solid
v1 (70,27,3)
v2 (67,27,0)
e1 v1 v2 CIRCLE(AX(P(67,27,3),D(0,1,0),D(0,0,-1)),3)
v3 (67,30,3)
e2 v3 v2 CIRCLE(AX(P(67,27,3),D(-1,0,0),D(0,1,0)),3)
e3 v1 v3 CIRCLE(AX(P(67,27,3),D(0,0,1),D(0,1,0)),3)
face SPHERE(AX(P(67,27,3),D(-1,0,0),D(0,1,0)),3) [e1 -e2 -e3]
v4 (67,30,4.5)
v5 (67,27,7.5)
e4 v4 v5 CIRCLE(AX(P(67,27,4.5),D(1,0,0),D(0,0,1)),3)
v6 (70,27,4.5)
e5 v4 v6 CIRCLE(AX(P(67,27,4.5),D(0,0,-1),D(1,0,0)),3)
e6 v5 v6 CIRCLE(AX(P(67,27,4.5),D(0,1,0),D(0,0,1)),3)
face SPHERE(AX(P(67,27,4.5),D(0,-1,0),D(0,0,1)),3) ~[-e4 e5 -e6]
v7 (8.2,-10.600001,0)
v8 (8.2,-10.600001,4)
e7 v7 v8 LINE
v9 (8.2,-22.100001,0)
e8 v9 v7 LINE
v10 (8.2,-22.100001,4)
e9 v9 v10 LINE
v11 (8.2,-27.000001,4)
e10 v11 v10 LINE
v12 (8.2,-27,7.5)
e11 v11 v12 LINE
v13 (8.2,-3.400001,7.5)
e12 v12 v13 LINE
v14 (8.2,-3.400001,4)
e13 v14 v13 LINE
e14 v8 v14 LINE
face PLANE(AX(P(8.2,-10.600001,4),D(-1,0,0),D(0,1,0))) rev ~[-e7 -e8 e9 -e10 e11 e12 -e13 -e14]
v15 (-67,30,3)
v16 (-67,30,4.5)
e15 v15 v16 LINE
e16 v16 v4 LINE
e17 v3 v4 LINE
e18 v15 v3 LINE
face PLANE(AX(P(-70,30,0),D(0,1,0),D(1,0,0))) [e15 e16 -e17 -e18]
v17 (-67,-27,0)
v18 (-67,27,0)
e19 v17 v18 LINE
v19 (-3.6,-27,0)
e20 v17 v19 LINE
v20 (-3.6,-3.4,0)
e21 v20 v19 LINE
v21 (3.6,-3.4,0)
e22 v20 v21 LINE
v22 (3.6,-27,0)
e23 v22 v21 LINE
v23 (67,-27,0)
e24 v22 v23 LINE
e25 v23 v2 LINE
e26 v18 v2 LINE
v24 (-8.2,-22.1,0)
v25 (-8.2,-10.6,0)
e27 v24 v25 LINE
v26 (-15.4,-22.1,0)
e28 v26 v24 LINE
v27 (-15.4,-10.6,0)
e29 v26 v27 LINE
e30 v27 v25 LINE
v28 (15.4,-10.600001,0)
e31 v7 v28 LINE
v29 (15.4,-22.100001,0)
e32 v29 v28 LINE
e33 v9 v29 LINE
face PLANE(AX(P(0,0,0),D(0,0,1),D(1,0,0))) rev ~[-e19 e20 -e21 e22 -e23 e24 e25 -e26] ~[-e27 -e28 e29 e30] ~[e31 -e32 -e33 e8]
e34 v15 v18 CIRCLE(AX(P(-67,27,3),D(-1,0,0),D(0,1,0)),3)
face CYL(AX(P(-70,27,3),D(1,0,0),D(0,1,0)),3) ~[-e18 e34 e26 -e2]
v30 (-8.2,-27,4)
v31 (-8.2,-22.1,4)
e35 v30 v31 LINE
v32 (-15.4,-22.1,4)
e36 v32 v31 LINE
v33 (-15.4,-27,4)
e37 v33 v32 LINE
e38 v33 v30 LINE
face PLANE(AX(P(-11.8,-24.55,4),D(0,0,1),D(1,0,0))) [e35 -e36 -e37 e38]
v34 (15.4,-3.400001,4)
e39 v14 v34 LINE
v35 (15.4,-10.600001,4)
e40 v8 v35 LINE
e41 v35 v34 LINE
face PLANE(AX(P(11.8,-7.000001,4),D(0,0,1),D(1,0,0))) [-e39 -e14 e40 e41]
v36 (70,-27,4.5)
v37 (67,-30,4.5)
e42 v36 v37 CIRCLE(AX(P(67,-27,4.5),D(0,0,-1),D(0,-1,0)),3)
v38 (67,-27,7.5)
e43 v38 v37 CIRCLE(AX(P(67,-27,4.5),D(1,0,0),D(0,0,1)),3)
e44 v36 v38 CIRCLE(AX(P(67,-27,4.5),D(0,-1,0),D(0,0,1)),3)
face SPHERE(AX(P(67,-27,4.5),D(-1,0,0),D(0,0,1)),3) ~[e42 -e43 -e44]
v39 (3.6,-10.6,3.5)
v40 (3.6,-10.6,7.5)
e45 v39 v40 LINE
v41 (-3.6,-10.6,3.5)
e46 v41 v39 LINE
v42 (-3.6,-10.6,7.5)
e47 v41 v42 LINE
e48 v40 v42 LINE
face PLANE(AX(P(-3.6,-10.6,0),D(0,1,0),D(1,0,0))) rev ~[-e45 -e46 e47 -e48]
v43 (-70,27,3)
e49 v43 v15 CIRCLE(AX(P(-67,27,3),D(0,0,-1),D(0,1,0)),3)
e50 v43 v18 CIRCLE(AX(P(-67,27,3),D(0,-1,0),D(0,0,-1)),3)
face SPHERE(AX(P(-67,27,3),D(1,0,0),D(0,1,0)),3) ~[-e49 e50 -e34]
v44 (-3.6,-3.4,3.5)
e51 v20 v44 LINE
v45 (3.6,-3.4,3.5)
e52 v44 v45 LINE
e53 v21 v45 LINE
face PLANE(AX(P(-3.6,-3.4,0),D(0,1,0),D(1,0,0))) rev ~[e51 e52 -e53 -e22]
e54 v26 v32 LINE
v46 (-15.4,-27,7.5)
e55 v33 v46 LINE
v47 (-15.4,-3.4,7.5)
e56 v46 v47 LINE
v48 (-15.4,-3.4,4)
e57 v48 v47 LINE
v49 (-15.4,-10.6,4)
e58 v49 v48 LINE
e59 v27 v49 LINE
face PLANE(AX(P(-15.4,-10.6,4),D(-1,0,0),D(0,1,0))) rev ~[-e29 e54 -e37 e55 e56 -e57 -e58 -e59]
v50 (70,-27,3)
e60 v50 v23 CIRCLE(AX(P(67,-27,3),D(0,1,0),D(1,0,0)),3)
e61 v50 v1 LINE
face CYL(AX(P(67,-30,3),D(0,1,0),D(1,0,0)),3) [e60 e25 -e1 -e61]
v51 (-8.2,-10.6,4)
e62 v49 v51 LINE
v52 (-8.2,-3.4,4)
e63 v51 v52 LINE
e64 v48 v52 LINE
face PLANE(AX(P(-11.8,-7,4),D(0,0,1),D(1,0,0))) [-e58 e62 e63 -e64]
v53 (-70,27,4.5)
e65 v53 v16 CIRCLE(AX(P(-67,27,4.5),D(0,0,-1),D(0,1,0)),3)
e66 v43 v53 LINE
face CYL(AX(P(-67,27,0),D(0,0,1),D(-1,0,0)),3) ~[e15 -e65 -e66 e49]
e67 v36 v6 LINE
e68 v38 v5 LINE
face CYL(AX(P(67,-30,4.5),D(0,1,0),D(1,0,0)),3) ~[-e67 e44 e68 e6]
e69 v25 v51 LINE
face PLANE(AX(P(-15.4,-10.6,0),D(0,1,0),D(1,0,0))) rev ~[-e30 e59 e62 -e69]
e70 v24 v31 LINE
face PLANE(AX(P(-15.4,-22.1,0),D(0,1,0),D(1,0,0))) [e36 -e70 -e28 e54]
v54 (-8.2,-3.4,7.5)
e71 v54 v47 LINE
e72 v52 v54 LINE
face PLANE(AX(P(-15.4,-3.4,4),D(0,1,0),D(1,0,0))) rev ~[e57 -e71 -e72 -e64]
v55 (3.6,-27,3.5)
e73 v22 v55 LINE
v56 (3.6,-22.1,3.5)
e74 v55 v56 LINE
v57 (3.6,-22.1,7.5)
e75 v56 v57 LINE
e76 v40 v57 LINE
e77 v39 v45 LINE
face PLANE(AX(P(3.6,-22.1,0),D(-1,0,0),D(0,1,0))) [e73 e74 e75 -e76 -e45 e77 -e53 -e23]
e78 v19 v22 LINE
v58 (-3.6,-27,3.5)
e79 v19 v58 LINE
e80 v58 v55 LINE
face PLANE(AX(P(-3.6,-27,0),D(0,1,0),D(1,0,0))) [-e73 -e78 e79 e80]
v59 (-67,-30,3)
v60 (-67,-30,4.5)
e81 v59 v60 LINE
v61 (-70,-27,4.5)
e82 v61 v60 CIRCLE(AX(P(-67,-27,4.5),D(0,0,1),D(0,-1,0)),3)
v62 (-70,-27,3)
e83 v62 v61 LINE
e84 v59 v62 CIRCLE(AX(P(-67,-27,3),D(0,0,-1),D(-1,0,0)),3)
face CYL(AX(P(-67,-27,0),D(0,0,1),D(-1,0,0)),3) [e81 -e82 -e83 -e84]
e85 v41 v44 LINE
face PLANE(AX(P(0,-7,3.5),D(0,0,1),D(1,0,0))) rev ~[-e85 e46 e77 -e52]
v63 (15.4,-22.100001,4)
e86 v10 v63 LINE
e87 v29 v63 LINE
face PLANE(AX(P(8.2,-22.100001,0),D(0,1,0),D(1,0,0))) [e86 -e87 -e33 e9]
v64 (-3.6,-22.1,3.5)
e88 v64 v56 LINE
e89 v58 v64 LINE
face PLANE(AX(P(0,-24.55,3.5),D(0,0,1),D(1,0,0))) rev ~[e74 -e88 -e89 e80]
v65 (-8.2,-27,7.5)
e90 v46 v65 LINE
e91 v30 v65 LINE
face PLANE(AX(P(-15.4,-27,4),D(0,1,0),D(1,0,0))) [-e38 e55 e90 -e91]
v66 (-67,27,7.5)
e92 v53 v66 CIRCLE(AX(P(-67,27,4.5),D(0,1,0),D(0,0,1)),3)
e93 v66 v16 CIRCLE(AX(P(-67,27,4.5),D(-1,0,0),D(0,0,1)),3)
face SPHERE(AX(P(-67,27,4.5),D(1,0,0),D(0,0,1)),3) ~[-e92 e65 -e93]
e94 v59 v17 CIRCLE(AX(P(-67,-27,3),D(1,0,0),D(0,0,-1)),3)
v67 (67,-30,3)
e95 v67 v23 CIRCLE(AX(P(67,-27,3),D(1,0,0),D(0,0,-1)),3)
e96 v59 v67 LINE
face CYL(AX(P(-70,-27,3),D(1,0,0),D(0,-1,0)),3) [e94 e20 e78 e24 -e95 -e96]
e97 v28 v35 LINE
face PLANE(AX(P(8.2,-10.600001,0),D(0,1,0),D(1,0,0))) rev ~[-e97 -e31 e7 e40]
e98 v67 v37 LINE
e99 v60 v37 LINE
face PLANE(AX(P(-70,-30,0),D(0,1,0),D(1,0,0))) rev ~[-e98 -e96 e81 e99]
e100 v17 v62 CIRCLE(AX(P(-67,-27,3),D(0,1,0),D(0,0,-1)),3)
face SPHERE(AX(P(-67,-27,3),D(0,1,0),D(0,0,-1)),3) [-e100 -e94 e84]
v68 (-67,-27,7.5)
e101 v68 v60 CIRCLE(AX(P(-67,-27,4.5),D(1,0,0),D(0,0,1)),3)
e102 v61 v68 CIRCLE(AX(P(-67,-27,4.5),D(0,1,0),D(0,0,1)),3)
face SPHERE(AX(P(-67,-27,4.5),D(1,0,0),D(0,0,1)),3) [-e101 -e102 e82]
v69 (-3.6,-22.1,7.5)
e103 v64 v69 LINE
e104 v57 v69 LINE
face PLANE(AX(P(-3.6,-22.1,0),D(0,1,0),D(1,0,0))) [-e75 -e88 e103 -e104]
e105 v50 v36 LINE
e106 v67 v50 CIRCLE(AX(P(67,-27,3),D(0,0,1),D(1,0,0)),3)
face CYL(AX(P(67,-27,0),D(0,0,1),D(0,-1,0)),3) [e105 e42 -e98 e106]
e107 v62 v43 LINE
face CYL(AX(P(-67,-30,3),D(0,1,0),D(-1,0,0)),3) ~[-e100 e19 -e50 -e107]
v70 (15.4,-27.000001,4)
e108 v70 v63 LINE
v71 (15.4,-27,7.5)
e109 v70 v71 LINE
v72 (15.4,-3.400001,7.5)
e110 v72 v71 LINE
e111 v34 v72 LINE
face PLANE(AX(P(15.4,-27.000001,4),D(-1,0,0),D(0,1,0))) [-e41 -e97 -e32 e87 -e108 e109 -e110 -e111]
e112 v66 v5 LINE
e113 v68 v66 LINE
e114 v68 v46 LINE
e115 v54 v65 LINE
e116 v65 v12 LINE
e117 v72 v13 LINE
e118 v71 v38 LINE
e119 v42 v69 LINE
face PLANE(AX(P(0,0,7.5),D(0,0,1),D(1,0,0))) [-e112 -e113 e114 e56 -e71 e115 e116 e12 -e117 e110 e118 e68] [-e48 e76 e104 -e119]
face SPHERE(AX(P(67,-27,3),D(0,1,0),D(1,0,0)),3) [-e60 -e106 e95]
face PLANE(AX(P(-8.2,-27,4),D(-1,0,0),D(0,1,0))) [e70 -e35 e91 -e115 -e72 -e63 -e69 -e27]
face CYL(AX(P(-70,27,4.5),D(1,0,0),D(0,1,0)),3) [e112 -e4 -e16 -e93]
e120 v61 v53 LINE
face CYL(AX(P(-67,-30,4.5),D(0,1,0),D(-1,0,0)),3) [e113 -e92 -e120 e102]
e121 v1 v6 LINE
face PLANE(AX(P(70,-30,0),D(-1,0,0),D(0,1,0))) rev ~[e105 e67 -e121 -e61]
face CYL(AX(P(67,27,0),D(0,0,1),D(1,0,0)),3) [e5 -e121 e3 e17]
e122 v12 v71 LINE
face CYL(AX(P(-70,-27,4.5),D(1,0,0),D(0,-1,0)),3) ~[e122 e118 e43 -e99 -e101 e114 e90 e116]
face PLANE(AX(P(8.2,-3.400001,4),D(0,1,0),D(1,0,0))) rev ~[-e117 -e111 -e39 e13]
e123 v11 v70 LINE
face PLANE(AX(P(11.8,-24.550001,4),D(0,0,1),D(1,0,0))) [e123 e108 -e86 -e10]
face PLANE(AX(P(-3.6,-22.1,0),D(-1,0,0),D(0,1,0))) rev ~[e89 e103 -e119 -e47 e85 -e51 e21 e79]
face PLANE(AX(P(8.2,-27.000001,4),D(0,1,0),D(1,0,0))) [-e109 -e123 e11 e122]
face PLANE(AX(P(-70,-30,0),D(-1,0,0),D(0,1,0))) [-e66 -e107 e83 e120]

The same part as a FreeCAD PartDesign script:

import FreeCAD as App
import Part
import Sketcher

doc = App.newDocument("Part")
body = doc.addObject("PartDesign::Body", "Body")

sketch1 = doc.addObject("Sketcher::SketchObject", "Sketch")
body.addObject(sketch1)
sketch1.AttachmentSupport = (doc.XY_Plane, [""])
sketch1.MapMode = "FlatFace"
sketch1.addGeometry([
    Part.LineSegment(App.Vector(-70, 30, 0), App.Vector(-70, -30, 0)),
    Part.LineSegment(App.Vector(-70, -30, 0), App.Vector(70, -30, 0)),
    Part.LineSegment(App.Vector(70, -30, 0), App.Vector(70, 30, 0)),
    Part.LineSegment(App.Vector(70, 30, 0), App.Vector(-70, 30, 0)),
], False)
sketch1.addConstraint([
    Sketcher.Constraint("Coincident", 0, 2, 1, 1),
    Sketcher.Constraint("Coincident", 1, 2, 2, 1),
    Sketcher.Constraint("Coincident", 2, 2, 3, 1),
    Sketcher.Constraint("Coincident", 3, 2, 0, 1),
    Sketcher.Constraint("Vertical", 0),
    Sketcher.Constraint("Horizontal", 1),
    Sketcher.Constraint("Vertical", 2),
    Sketcher.Constraint("Horizontal", 3),
    Sketcher.Constraint("Symmetric", 0, 2, 2, 2, -1, 1),
    Sketcher.Constraint("DistanceX", 1, 1, 1, 2, 140.0),
    Sketcher.Constraint("DistanceY", 0, 2, 0, 1, 60.0),
])
pad1 = doc.addObject("PartDesign::Pad", "Pad")
body.addObject(pad1)
pad1.Profile = sketch1
pad1.Length = 7.5
doc.recompute()

fillet = doc.addObject("PartDesign::Fillet", "Fillet")
body.addObject(fillet)
fillet.Base = (pad1, ["Edge1"])
fillet.UseAllEdges = True
fillet.Radius = 3

sketch2 = doc.addObject("Sketcher::SketchObject", "Sketch001")
body.addObject(sketch2)
sketch2.AttachmentSupport = (doc.XY_Plane, [""])
sketch2.MapMode = "FlatFace"
sketch2.addGeometry([
    Part.LineSegment(App.Vector(-3.6, -3.4, 0), App.Vector(-3.6, -10.6, 0)),
    Part.LineSegment(App.Vector(-3.6, -10.6, 0), App.Vector(3.6, -10.6, 0)),
    Part.LineSegment(App.Vector(3.6, -10.6, 0), App.Vector(3.6, -3.4, 0)),
    Part.LineSegment(App.Vector(3.6, -3.4, 0), App.Vector(-3.6, -3.4, 0)),
    Part.LineSegment(App.Vector(-3.6, -22.1, 0), App.Vector(-3.6, -27, 0)),
    Part.LineSegment(App.Vector(-3.6, -27, 0), App.Vector(3.6, -27, 0)),
    Part.LineSegment(App.Vector(3.6, -27, 0), App.Vector(3.6, -22.1, 0)),
    Part.LineSegment(App.Vector(3.6, -22.1, 0), App.Vector(-3.6, -22.1, 0)),
], False)
sketch2.addConstraint([
    Sketcher.Constraint("Coincident", 0, 2, 1, 1),
    Sketcher.Constraint("Coincident", 1, 2, 2, 1),
    Sketcher.Constraint("Coincident", 2, 2, 3, 1),
    Sketcher.Constraint("Coincident", 3, 2, 0, 1),
    Sketcher.Constraint("Coincident", 4, 2, 5, 1),
    Sketcher.Constraint("Coincident", 5, 2, 6, 1),
    Sketcher.Constraint("Coincident", 6, 2, 7, 1),
    Sketcher.Constraint("Coincident", 7, 2, 4, 1),
    Sketcher.Constraint("Vertical", 0),
    Sketcher.Constraint("Horizontal", 1),
    Sketcher.Constraint("Vertical", 2),
    Sketcher.Constraint("Horizontal", 3),
    Sketcher.Constraint("Vertical", 4),
    Sketcher.Constraint("Horizontal", 5),
    Sketcher.Constraint("Vertical", 6),
    Sketcher.Constraint("Horizontal", 7),
    Sketcher.Constraint("Vertical", 3, 2, 4, 2),
    Sketcher.Constraint("Vertical", 2, 2, 5, 2),
    Sketcher.Constraint("Equal", 7, 0),
    Sketcher.Constraint("DistanceX", 1, 1, 1, 2, 7.2),
    Sketcher.Constraint("DistanceY", 4, 2, 4, 1, 4.9),
    Sketcher.Constraint("DistanceY", 4, 2, -1, 1, 27.0),
    Sketcher.Constraint("DistanceX", 0, 2, -1, 1, 3.6),
    Sketcher.Constraint("DistanceY", 0, 2, -1, 1, 10.6),
])
pocket1 = doc.addObject("PartDesign::Pocket", "Pocket")
body.addObject(pocket1)
pocket1.Profile = sketch2
pocket1.Length = 3.5
pocket1.Reversed = True

sketch3 = doc.addObject("Sketcher::SketchObject", "Sketch002")
body.addObject(sketch3)
sketch3.AttachmentSupport = (doc.XY_Plane, [""])
sketch3.MapMode = "FlatFace"
sketch3.addGeometry([
    Part.LineSegment(App.Vector(-4, -11, 0), App.Vector(-4, -22, 0)),
    Part.LineSegment(App.Vector(-4, -22, 0), App.Vector(4, -22, 0)),
    Part.LineSegment(App.Vector(4, -22, 0), App.Vector(4, -11, 0)),
    Part.LineSegment(App.Vector(4, -11, 0), App.Vector(-4, -11, 0)),
], False)
sketch3.addConstraint([
    Sketcher.Constraint("Coincident", 0, 2, 1, 1),
    Sketcher.Constraint("Coincident", 1, 2, 2, 1),
    Sketcher.Constraint("Coincident", 2, 2, 3, 1),
    Sketcher.Constraint("Coincident", 3, 2, 0, 1),
    Sketcher.Constraint("Vertical", 0),
    Sketcher.Constraint("Horizontal", 1),
    Sketcher.Constraint("Vertical", 2),
    Sketcher.Constraint("Horizontal", 3),
    Sketcher.Constraint("DistanceX", 1, 1, 1, 2, 7.2),
    Sketcher.Constraint("DistanceY", 0, 2, 0, 1, 11.5),
    Sketcher.Constraint("DistanceX", 0, 2, -1, 1, 3.6),
    Sketcher.Constraint("DistanceY", 0, 2, -1, 1, 22.1),
])
pocket2 = doc.addObject("PartDesign::Pocket", "Pocket001")
body.addObject(pocket2)
pocket2.Profile = sketch3
pocket2.Length = 10
pocket2.Reversed = True

sketch4 = doc.addObject("Sketcher::SketchObject", "Sketch003")
body.addObject(sketch4)
sketch4.AttachmentSupport = (doc.XY_Plane, [""])
sketch4.MapMode = "FlatFace"
sketch4.addGeometry([
    Part.LineSegment(App.Vector(-15, -11, 0), App.Vector(-15, -22, 0)),
    Part.LineSegment(App.Vector(-15, -22, 0), App.Vector(-8, -22, 0)),
    Part.LineSegment(App.Vector(-8, -22, 0), App.Vector(-8, -11, 0)),
    Part.LineSegment(App.Vector(-8, -11, 0), App.Vector(-15, -11, 0)),
    Part.LineSegment(App.Vector(8, -11, 0), App.Vector(8, -22, 0)),
    Part.LineSegment(App.Vector(8, -22, 0), App.Vector(15, -22, 0)),
    Part.LineSegment(App.Vector(15, -22, 0), App.Vector(15, -11, 0)),
    Part.LineSegment(App.Vector(15, -11, 0), App.Vector(8, -11, 0)),
], False)
sketch4.addConstraint([
    Sketcher.Constraint("Coincident", 0, 2, 1, 1),
    Sketcher.Constraint("Coincident", 1, 2, 2, 1),
    Sketcher.Constraint("Coincident", 2, 2, 3, 1),
    Sketcher.Constraint("Coincident", 3, 2, 0, 1),
    Sketcher.Constraint("Coincident", 4, 2, 5, 1),
    Sketcher.Constraint("Coincident", 5, 2, 6, 1),
    Sketcher.Constraint("Coincident", 6, 2, 7, 1),
    Sketcher.Constraint("Coincident", 7, 2, 4, 1),
    Sketcher.Constraint("Vertical", 0),
    Sketcher.Constraint("Horizontal", 1),
    Sketcher.Constraint("Vertical", 2),
    Sketcher.Constraint("Horizontal", 3),
    Sketcher.Constraint("Vertical", 4),
    Sketcher.Constraint("Horizontal", 5),
    Sketcher.Constraint("Vertical", 6),
    Sketcher.Constraint("Horizontal", 7),
    Sketcher.Constraint("Symmetric", 1, 2, 4, 2, -2),
    Sketcher.Constraint("Symmetric", 3, 2, 6, 2, -2),
    Sketcher.Constraint("DistanceX", 1, 1, 1, 2, 7.2),
    Sketcher.Constraint("DistanceY", 0, 2, 0, 1, 11.5),
    Sketcher.Constraint("DistanceX", 0, 2, -1, 1, 15.4),
    Sketcher.Constraint("DistanceY", 0, 2, -1, 1, 22.1),
])
pocket3 = doc.addObject("PartDesign::Pocket", "Pocket002")
body.addObject(pocket3)
pocket3.Profile = sketch4
pocket3.Length = 25
pocket3.Reversed = True

sketch5 = doc.addObject("Sketcher::SketchObject", "Sketch004")
body.addObject(sketch5)
sketch5.AttachmentSupport = (doc.XY_Plane, [""])
sketch5.MapMode = "FlatFace"
sketch5.AttachmentOffset = App.Placement(App.Vector(0, 0, 4), App.Rotation())
sketch5.addGeometry([
    Part.LineSegment(App.Vector(-15.4, -22.1, 0), App.Vector(-15.4, -27, 0)),
    Part.LineSegment(App.Vector(-15.4, -27, 0), App.Vector(-8.2, -27, 0)),
    Part.LineSegment(App.Vector(-8.2, -27, 0), App.Vector(-8.2, -22.1, 0)),
    Part.LineSegment(App.Vector(-8.2, -22.1, 0), App.Vector(-15.4, -22.1, 0)),
    Part.LineSegment(App.Vector(-15.4, -3.4, 0), App.Vector(-15.4, -10.6, 0)),
    Part.LineSegment(App.Vector(-15.4, -10.6, 0), App.Vector(-8.2, -10.6, 0)),
    Part.LineSegment(App.Vector(-8.2, -10.6, 0), App.Vector(-8.2, -3.4, 0)),
    Part.LineSegment(App.Vector(-8.2, -3.4, 0), App.Vector(-15.4, -3.4, 0)),
    Part.LineSegment(App.Vector(8.2, -3.4, 0), App.Vector(8.2, -10.6, 0)),
    Part.LineSegment(App.Vector(8.2, -10.6, 0), App.Vector(15.4, -10.6, 0)),
    Part.LineSegment(App.Vector(15.4, -10.6, 0), App.Vector(15.4, -3.4, 0)),
    Part.LineSegment(App.Vector(15.4, -3.4, 0), App.Vector(8.2, -3.4, 0)),
    Part.LineSegment(App.Vector(8.2, -22.1, 0), App.Vector(8.2, -27, 0)),
    Part.LineSegment(App.Vector(8.2, -27, 0), App.Vector(15.4, -27, 0)),
    Part.LineSegment(App.Vector(15.4, -27, 0), App.Vector(15.4, -22.1, 0)),
    Part.LineSegment(App.Vector(15.4, -22.1, 0), App.Vector(8.2, -22.1, 0)),
], False)
sketch5.addConstraint([
    Sketcher.Constraint("Coincident", 0, 2, 1, 1),
    Sketcher.Constraint("Coincident", 1, 2, 2, 1),
    Sketcher.Constraint("Coincident", 2, 2, 3, 1),
    Sketcher.Constraint("Coincident", 3, 2, 0, 1),
    Sketcher.Constraint("Coincident", 4, 2, 5, 1),
    Sketcher.Constraint("Coincident", 5, 2, 6, 1),
    Sketcher.Constraint("Coincident", 6, 2, 7, 1),
    Sketcher.Constraint("Coincident", 7, 2, 4, 1),
    Sketcher.Constraint("Coincident", 8, 2, 9, 1),
    Sketcher.Constraint("Coincident", 9, 2, 10, 1),
    Sketcher.Constraint("Coincident", 10, 2, 11, 1),
    Sketcher.Constraint("Coincident", 11, 2, 8, 1),
    Sketcher.Constraint("Coincident", 12, 2, 13, 1),
    Sketcher.Constraint("Coincident", 13, 2, 14, 1),
    Sketcher.Constraint("Coincident", 14, 2, 15, 1),
    Sketcher.Constraint("Coincident", 15, 2, 12, 1),
    Sketcher.Constraint("Vertical", 0),
    Sketcher.Constraint("Horizontal", 1),
    Sketcher.Constraint("Vertical", 2),
    Sketcher.Constraint("Horizontal", 3),
    Sketcher.Constraint("Vertical", 4),
    Sketcher.Constraint("Horizontal", 5),
    Sketcher.Constraint("Vertical", 6),
    Sketcher.Constraint("Horizontal", 7),
    Sketcher.Constraint("Vertical", 8),
    Sketcher.Constraint("Horizontal", 9),
    Sketcher.Constraint("Vertical", 10),
    Sketcher.Constraint("Horizontal", 11),
    Sketcher.Constraint("Vertical", 12),
    Sketcher.Constraint("Horizontal", 13),
    Sketcher.Constraint("Vertical", 14),
    Sketcher.Constraint("Horizontal", 15),
    Sketcher.Constraint("Symmetric", 5, 2, 8, 2, -2),
    Sketcher.Constraint("Symmetric", 7, 2, 10, 2, -2),
    Sketcher.Constraint("Symmetric", 1, 2, 12, 2, -2),
    Sketcher.Constraint("Symmetric", 3, 2, 14, 2, -2),
    Sketcher.Constraint("Vertical", 3, 2, 4, 2),
    Sketcher.Constraint("Vertical", 2, 2, 5, 2),
    Sketcher.Constraint("Equal", 15, 4),
    Sketcher.Constraint("DistanceX", 1, 1, 1, 2, 7.2),
    Sketcher.Constraint("DistanceY", 0, 2, 0, 1, 4.9),
    Sketcher.Constraint("DistanceY", 0, 2, -1, 1, 27.0),
    Sketcher.Constraint("DistanceX", 0, 2, -1, 1, 15.4),
    Sketcher.Constraint("DistanceY", 4, 2, -1, 1, 10.6),
])
pocket4 = doc.addObject("PartDesign::Pocket", "Pocket003")
body.addObject(pocket4)
pocket4.Profile = sketch5
pocket4.Length = 6
pocket4.Reversed = True

doc.recompute()
